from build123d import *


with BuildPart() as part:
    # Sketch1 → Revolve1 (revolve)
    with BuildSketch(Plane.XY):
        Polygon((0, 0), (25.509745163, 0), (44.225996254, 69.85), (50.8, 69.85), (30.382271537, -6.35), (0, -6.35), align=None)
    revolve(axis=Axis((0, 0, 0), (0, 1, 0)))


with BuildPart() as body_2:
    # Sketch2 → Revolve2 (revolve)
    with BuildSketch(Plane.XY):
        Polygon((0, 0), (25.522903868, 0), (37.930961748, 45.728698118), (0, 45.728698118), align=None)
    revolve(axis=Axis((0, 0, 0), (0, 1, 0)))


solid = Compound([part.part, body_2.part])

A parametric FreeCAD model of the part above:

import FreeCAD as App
import Part
import Sketcher
from FreeCAD import Vector
Q = App.Units.Quantity

doc = App.newDocument("Part")
body = doc.addObject("PartDesign::Body", "Body")

# Sketch on XY plane
sketch1 = doc.addObject("Sketcher::SketchObject", "Sketch")
body.addObject(sketch1)
sketch1.AttachmentSupport = (doc.XY_Plane, [""])
sketch1.MapMode = "FlatFace"
sketch1.addGeometry(Part.LineSegment(Vector(26, 0, 0), Vector(0, 0, 0)), False)
sketch1.addGeometry(Part.LineSegment(Vector(0, 0, 0), Vector(0, -6, 0)), False)
sketch1.addGeometry(Part.LineSegment(Vector(0, -6, 0), Vector(30, -6, 0)), False)
sketch1.addGeometry(Part.LineSegment(Vector(30, -6, 0), Vector(51, 70, 0)), False)
sketch1.addGeometry(Part.LineSegment(Vector(51, 70, 0), Vector(44, 70, 0)), False)
sketch1.addGeometry(Part.LineSegment(Vector(44, 70, 0), Vector(26, 0, 0)), False)
sketch1.addConstraint(Sketcher.Constraint("Coincident", 0, 2, 1, 1))
sketch1.addConstraint(Sketcher.Constraint("Coincident", 1, 2, 2, 1))
sketch1.addConstraint(Sketcher.Constraint("Coincident", 2, 2, 3, 1))
sketch1.addConstraint(Sketcher.Constraint("Coincident", 3, 2, 4, 1))
sketch1.addConstraint(Sketcher.Constraint("Coincident", 4, 2, 5, 1))
sketch1.addConstraint(Sketcher.Constraint("Coincident", 5, 2, 0, 1))
sketch1.addConstraint(Sketcher.Constraint("Horizontal", 0))
sketch1.addConstraint(Sketcher.Constraint("Vertical", 1))
sketch1.addConstraint(Sketcher.Constraint("Horizontal", 2))
sketch1.addConstraint(Sketcher.Constraint("Horizontal", 4))
sketch1.addConstraint(Sketcher.Constraint("Coincident", 0, 2, -1, 1))
sketch1.addConstraint(Sketcher.Constraint("Parallel", 3, 5))
sketch1.addConstraint(Sketcher.Constraint("DistanceX", -1, 1, 3, 2, Q("2 in")))
sketch1.addConstraint(Sketcher.Constraint("Angle", 3, Q("75 deg")))
sketch1.addConstraint(Sketcher.Constraint("DistanceY", 2, 2, 3, 2, Q("3 in")))
sketch1.addConstraint(Sketcher.Constraint("DistanceY", 1, 2, 1, 1, Q("0.25 in")))
sketch1.addConstraint(Sketcher.Constraint("DistanceX", 0, 2, 0, 1, Q("25.509745 mm")))
revolution = doc.addObject("PartDesign::Revolution", "Revolution")
body.addObject(revolution)
revolution.Profile = sketch1
revolution.ReferenceAxis = (sketch1, ["V_Axis"])
revolution.Angle = 360
body2 = doc.addObject("PartDesign::Body", "Body001")

# Sketch on XY plane
sketch2 = doc.addObject("Sketcher::SketchObject", "Sketch001")
body2.addObject(sketch2)
sketch2.AttachmentSupport = (doc.getObject("XY_Plane001"), [""])
sketch2.MapMode = "FlatFace"
sketch2.addGeometry(Part.LineSegment(Vector(0, 0, 0), Vector(26, 0, 0)), False)
sketch2.addGeometry(Part.LineSegment(Vector(26, 0, 0), Vector(38, 46, 0)), False)
sketch2.addGeometry(Part.LineSegment(Vector(38, 46, 0), Vector(0, 46, 0)), False)
sketch2.addGeometry(Part.LineSegment(Vector(0, 46, 0), Vector(0, 0, 0)), False)
sketch2.addConstraint(Sketcher.Constraint("Coincident", 0, 2, 1, 1))
sketch2.addConstraint(Sketcher.Constraint("Coincident", 1, 2, 2, 1))
sketch2.addConstraint(Sketcher.Constraint("Coincident", 2, 2, 3, 1))
sketch2.addConstraint(Sketcher.Constraint("Coincident", 3, 2, 0, 1))
sketch2.addConstraint(Sketcher.Constraint("Horizontal", 0))
sketch2.addConstraint(Sketcher.Constraint("Horizontal", 2))
sketch2.addConstraint(Sketcher.Constraint("Vertical", 3))
sketch2.addConstraint(Sketcher.Constraint("Coincident", 3, 2, -1, 1))
sketch2.addConstraint(Sketcher.Constraint("DistanceY", 3, 2, 3, 1, Q("45.728698 mm")))
sketch2.addConstraint(Sketcher.Constraint("DistanceX", 2, 2, 2, 1, Q("37.930962 mm")))
sketch2.addConstraint(Sketcher.Constraint("Distance", 1, Q("47.382209 mm")))
revolution2 = doc.addObject("PartDesign::Revolution", "Revolution001")
body2.addObject(revolution2)
revolution2.Profile = sketch2
revolution2.ReferenceAxis = (sketch2, ["V_Axis"])
revolution2.Angle = 360

doc.recompute()
